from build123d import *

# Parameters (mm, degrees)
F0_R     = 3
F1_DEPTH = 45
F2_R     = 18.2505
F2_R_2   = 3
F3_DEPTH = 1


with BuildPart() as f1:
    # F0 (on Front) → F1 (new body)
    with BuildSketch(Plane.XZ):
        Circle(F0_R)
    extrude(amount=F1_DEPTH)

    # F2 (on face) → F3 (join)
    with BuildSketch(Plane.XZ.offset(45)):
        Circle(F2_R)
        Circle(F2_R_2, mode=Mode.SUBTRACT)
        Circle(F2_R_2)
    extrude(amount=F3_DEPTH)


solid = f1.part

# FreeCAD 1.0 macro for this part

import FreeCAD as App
import Part
import Sketcher
Q = App.Units.Quantity

doc = App.newDocument("Part")
body = doc.addObject("PartDesign::Body", "Body")

# Sketch on XZ plane
sketch1 = body.newObject("Sketcher::SketchObject", "Sketch")
sketch1.AttachmentSupport = (doc.getObject("XZ_Plane"), [""])
sketch1.MapMode = "FlatFace"
sketch1.addGeometry(Part.Circle(App.Vector(0, 0, 0), App.Vector(0, 0, 1), 3), False)
sketch1.addConstraint(Sketcher.Constraint("Coincident", 0, 3, -1, 1))
sketch1.addConstraint(Sketcher.Constraint("Diameter", 0, Q("6 mm")))
pad1 = body.newObject("PartDesign::Pad", "Pad")
pad1.Profile = sketch1
pad1.Length = 45

# Sketch on XZ plane
sketch2 = body.newObject("Sketcher::SketchObject", "Sketch001")
sketch2.AttachmentSupport = (doc.getObject("XZ_Plane"), [""])
sketch2.MapMode = "FlatFace"
sketch2.AttachmentOffset = App.Placement(App.Vector(0, 0, 45), App.Rotation())
sketch2.addGeometry(Part.Circle(App.Vector(0, 0, 0), App.Vector(0, 0, 1), 18.2505), False)
sketch2.addConstraint(Sketcher.Constraint("Coincident", 0, 3, -1, 1))
sketch2.addConstraint(Sketcher.Constraint("Diameter", 0, Q("36.501 mm")))
pad2 = body.newObject("PartDesign::Pad", "Pad001")
pad2.Profile = sketch2
pad2.Length = 1

doc.recompute()
